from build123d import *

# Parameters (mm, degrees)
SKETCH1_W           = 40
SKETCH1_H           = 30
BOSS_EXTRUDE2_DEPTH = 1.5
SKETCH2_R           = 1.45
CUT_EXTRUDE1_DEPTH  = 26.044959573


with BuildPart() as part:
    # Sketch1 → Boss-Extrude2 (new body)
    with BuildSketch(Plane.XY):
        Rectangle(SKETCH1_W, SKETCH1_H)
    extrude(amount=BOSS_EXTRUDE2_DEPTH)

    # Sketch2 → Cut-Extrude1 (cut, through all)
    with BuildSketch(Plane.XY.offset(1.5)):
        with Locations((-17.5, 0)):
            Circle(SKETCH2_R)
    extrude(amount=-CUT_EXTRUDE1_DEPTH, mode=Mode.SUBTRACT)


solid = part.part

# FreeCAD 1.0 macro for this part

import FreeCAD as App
import Part
import Sketcher
from FreeCAD import Vector
Q = App.Units.Quantity


def add_polygon(sketch, points):
    """Adds a closed chain of lines whose ends are joined by coincident constraints."""
    first, n = sketch.GeometryCount, len(points)
    for a, b in zip(points, points[1:] + points[:1]):
        sketch.addGeometry(Part.LineSegment(App.Vector(*a, 0), App.Vector(*b, 0)), False)
    for i in range(n):
        sketch.addConstraint(Sketcher.Constraint("Coincident", first + i, 2, first + (i + 1) % n, 1))

doc = App.newDocument("Part")
params = doc.addObject("Spreadsheet::Sheet", "Params")
for row, (alias, value) in enumerate([
    ("sketch1_width", "40 mm"),
    ("sketch1_height", "30 mm"),
    ("pad1_length", "1.5 mm"),
    ("sketch2_diameter", "2.9 mm"),
], start=1):
    params.set(f"A{row}", alias)
    params.set(f"B{row}", "=" + value)
    params.setAlias(f"B{row}", alias)

body = doc.addObject("PartDesign::Body", "Body")

# Sketch on XY plane
sketch1 = body.newObject("Sketcher::SketchObject", "Sketch")
sketch1.AttachmentSupport = (doc.getObject("XY_Plane"), [""])
sketch1.MapMode = "FlatFace"
add_polygon(sketch1, [(-20, 15), (-20, -15), (20, -15), (20, 15)])  # lines 0-3
sketch1.addConstraint([
    Sketcher.Constraint("Vertical", 0),
    Sketcher.Constraint("Horizontal", 1),
    Sketcher.Constraint("Vertical", 2),
    Sketcher.Constraint("Horizontal", 3),
    Sketcher.Constraint("Symmetric", 0, 2, 2, 2, -1, 1),
    Sketcher.Constraint("DistanceX", 1, 1, 1, 2, Q("40 mm")),
    Sketcher.Constraint("DistanceY", 0, 2, 0, 1, Q("30 mm")),
])
sketch1.setExpression("Constraints[9]", "Params.sketch1_width")
sketch1.setExpression("Constraints[10]", "Params.sketch1_height")
pad1 = body.newObject("PartDesign::Pad", "Pad")
pad1.Profile = sketch1
pad1.setExpression("Length", "Params.pad1_length")

# Sketch on XY plane
sketch2 = body.newObject("Sketcher::SketchObject", "Sketch001")
sketch2.AttachmentSupport = (doc.getObject("XY_Plane"), [""])
sketch2.MapMode = "FlatFace"
sketch2.AttachmentOffset = App.Placement(Vector(0, 0, 1.5), App.Rotation())
sketch2.addGeometry(Part.Circle(Vector(-17.5, 0, 0), Vector(0, 0, 1), 1.45), False)
sketch2.addConstraint([
    Sketcher.Constraint("PointOnObject", 0, 3, -1),
    Sketcher.Constraint("Diameter", 0, Q("2.9 mm")),
    Sketcher.Constraint("DistanceX", 0, 3, -1, 1, Q("17.5 mm")),
])
sketch2.setExpression("Constraints[1]", "Params.sketch2_diameter")
pocket1 = body.newObject("PartDesign::Pocket", "Pocket")
pocket1.Profile = sketch2
pocket1.Type = "ThroughAll"

doc.recompute()
